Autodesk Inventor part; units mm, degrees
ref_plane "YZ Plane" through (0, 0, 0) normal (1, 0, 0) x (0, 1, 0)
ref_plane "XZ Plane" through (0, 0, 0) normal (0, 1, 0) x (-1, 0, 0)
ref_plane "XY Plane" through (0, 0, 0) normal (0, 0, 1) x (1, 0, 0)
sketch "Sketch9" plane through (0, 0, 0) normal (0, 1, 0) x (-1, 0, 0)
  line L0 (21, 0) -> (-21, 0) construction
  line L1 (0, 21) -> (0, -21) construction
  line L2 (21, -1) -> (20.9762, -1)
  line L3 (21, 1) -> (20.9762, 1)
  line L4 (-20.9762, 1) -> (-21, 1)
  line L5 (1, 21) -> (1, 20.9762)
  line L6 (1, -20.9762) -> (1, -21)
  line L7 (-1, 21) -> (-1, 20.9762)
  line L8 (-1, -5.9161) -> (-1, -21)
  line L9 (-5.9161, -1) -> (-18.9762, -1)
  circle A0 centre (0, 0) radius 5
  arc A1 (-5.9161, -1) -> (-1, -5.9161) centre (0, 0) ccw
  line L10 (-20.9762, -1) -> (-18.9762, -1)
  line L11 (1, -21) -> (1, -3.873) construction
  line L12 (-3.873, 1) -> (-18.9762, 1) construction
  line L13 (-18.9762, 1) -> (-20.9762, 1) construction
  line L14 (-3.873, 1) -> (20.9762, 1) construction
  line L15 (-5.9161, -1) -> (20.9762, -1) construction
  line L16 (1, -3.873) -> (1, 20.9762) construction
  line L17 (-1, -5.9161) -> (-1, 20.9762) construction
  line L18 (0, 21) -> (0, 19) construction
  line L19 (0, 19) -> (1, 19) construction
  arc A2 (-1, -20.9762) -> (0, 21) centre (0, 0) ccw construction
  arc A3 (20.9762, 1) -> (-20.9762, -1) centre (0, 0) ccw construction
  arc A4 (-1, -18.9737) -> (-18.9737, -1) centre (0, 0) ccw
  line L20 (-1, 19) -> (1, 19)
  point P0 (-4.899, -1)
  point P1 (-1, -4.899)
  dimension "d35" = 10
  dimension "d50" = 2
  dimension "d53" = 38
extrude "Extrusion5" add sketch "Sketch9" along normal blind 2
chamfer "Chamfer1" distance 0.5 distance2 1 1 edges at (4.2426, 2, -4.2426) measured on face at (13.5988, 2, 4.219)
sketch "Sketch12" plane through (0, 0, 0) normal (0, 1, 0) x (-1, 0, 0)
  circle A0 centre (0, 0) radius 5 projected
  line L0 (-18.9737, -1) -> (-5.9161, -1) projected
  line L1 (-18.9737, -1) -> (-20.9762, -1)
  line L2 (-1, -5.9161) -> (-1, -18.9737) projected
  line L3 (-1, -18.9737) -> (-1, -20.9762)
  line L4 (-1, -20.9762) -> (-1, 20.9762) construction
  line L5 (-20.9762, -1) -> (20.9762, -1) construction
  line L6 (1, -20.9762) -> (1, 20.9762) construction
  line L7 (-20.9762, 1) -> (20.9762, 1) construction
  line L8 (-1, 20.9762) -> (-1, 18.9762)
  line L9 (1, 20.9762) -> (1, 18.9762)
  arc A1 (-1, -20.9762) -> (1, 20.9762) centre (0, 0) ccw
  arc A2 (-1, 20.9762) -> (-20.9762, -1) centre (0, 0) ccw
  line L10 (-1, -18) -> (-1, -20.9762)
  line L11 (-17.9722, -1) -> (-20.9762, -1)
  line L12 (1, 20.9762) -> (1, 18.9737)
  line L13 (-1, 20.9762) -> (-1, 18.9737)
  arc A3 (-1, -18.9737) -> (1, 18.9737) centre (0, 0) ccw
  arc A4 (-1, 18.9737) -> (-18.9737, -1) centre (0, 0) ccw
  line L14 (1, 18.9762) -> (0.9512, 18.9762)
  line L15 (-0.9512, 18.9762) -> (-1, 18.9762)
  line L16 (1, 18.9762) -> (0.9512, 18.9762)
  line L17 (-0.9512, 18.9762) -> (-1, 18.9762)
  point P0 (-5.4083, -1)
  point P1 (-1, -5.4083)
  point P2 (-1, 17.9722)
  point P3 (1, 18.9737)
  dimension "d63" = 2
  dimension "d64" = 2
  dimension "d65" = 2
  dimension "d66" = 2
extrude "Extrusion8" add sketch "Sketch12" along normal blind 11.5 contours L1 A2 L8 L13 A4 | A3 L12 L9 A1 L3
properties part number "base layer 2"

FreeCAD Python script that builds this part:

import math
import FreeCAD as App
import Part
import Sketcher
from FreeCAD import Vector
Q = App.Units.Quantity


def edges_at(feature, points):
    """Names of the edges that pass closest to the given points."""
    edges = feature.Shape.Edges
    near = lambda p: min(range(len(edges)), key=lambda i: edges[i].distToShape(Part.Vertex(*p))[0])
    return sorted({f"Edge{near(p) + 1}" for p in points})

doc = App.newDocument("Part")
body = doc.addObject("PartDesign::Body", "Body")

# Sketch on XZ plane
sketch1 = body.newObject("Sketcher::SketchObject", "Sketch")
sketch1.AttachmentSupport = (doc.getObject("XZ_Plane"), [""])
sketch1.MapMode = "FlatFace"
sketch1.addGeometry(Part.ArcOfCircle(Part.Circle(Vector(0, 0, 0), Vector(0, 0, 1), 6), math.radians(-80), math.radians(-10)), False)
sketch1.addGeometry(Part.LineSegment(Vector(1, -6, 0), Vector(1, -19, 0)), False)
sketch1.addGeometry(Part.ArcOfCircle(Part.Circle(Vector(0, 0, 0), Vector(0, 0, 1), 19), math.radians(-3), math.radians(273)), False)
sketch1.addGeometry(Part.LineSegment(Vector(19, -1, 0), Vector(6, -1, 0)), False)
sketch1.addGeometry(Part.Circle(Vector(0, 0, 0), Vector(0, 0, 1), 5), False)
sketch1.addConstraint(Sketcher.Constraint("Coincident", 0, 1, 1, 1))
sketch1.addConstraint(Sketcher.Constraint("Coincident", 1, 2, 2, 2))
sketch1.addConstraint(Sketcher.Constraint("Coincident", 2, 1, 3, 1))
sketch1.addConstraint(Sketcher.Constraint("Coincident", 3, 2, 0, 2))
sketch1.addConstraint(Sketcher.Constraint("Vertical", 1))
sketch1.addConstraint(Sketcher.Constraint("Horizontal", 3))
sketch1.addConstraint(Sketcher.Constraint("Coincident", 0, 3, -1, 1))
sketch1.addConstraint(Sketcher.Constraint("Coincident", 2, 3, -1, 1))
sketch1.addConstraint(Sketcher.Constraint("Coincident", 4, 3, -1, 1))
sketch1.addConstraint(Sketcher.Constraint("Equal", 3, 1))
sketch1.addConstraint(Sketcher.Constraint("Diameter", 4, Q("10 mm")))
sketch1.addConstraint(Sketcher.Constraint("Radius", 2, Q("19 mm")))
sketch1.addConstraint(Sketcher.Constraint("Radius", 0, Q("6 mm")))
sketch1.addConstraint(Sketcher.Constraint("DistanceX", -1, 1, 0, 1, Q("1 mm")))
pad1 = body.newObject("PartDesign::Pad", "Pad")
pad1.Profile = sketch1
pad1.Length = 2
pad1.Reversed = True
doc.recompute()

chamfer = body.newObject("PartDesign::Chamfer", "Chamfer")
chamfer.Base = (pad1, edges_at(pad1, [(4.243, 2, -4.243)]))
chamfer.ChamferType = "Two distances"
chamfer.Size = 0.5
chamfer.Size2 = 1
chamfer.FlipDirection = True

# Sketch on XZ plane
sketch2 = body.newObject("Sketcher::SketchObject", "Sketch001")
sketch2.AttachmentSupport = (doc.getObject("XZ_Plane"), [""])
sketch2.MapMode = "FlatFace"
sketch2.addGeometry(Part.LineSegment(Vector(21, -1, 0), Vector(19, -1, 0)), False)
sketch2.addGeometry(Part.ArcOfCircle(Part.Circle(Vector(0, 0, 0), Vector(0, 0, 1), 19), math.radians(-3), math.radians(87)), False)
sketch2.addGeometry(Part.LineSegment(Vector(1, 19, 0), Vector(1, 21, 0)), False)
sketch2.addGeometry(Part.ArcOfCircle(Part.Circle(Vector(0, 0, 0), Vector(0, 0, 1), 21), math.radians(-3), math.radians(87)), False)
sketch2.addGeometry(Part.ArcOfCircle(Part.Circle(Vector(0, 0, 0), Vector(0, 0, 1), 19), math.radians(93), math.radians(273)), False)
sketch2.addGeometry(Part.LineSegment(Vector(1, -19, 0), Vector(1, -21, 0)), False)
sketch2.addGeometry(Part.ArcOfCircle(Part.Circle(Vector(0, 0, 0), Vector(0, 0, 1), 21), math.radians(93), math.radians(273)), False)
sketch2.addGeometry(Part.LineSegment(Vector(-1, 21, 0), Vector(-1, 19, 0)), False)
sketch2.addConstraint(Sketcher.Constraint("Coincident", 0, 2, 1, 1))
sketch2.addConstraint(Sketcher.Constraint("Coincident", 1, 2, 2, 1))
sketch2.addConstraint(Sketcher.Constraint("Coincident", 2, 2, 3, 2))
sketch2.addConstraint(Sketcher.Constraint("Coincident", 3, 1, 0, 1))
sketch2.addConstraint(Sketcher.Constraint("Coincident", 4, 2, 5, 1))
sketch2.addConstraint(Sketcher.Constraint("Coincident", 5, 2, 6, 2))
sketch2.addConstraint(Sketcher.Constraint("Coincident", 6, 1, 7, 1))
sketch2.addConstraint(Sketcher.Constraint("Coincident", 7, 2, 4, 1))
sketch2.addConstraint(Sketcher.Constraint("Horizontal", 0))
sketch2.addConstraint(Sketcher.Constraint("Vertical", 2))
sketch2.addConstraint(Sketcher.Constraint("Vertical", 5))
sketch2.addConstraint(Sketcher.Constraint("Vertical", 7))
sketch2.addConstraint(Sketcher.Constraint("Coincident", 1, 3, -1, 1))
sketch2.addConstraint(Sketcher.Constraint("Coincident", 3, 3, -1, 1))
sketch2.addConstraint(Sketcher.Constraint("Coincident", 4, 3, -1, 1))
sketch2.addConstraint(Sketcher.Constraint("Coincident", 6, 3, -1, 1))
sketch2.addConstraint(Sketcher.Constraint("Equal", 1, 4))
sketch2.addConstraint(Sketcher.Constraint("Equal", 3, 6))
sketch2.addConstraint(Sketcher.Constraint("Horizontal", 2, 2, 6, 1))
sketch2.addConstraint(Sketcher.Constraint("Vertical", 2, 2, 4, 2))
sketch2.addConstraint(Sketcher.Constraint("Equal", 0, 2))
sketch2.addConstraint(Sketcher.Constraint("Radius", 1, Q("19 mm")))
sketch2.addConstraint(Sketcher.Constraint("Radius", 3, Q("21 mm")))
sketch2.addConstraint(Sketcher.Constraint("DistanceX", 6, 1, 2, 2, Q("2 mm")))
pad2 = body.newObject("PartDesign::Pad", "Pad001")
pad2.Profile = sketch2
pad2.Length = 11.5
pad2.Reversed = True

doc.recompute()
